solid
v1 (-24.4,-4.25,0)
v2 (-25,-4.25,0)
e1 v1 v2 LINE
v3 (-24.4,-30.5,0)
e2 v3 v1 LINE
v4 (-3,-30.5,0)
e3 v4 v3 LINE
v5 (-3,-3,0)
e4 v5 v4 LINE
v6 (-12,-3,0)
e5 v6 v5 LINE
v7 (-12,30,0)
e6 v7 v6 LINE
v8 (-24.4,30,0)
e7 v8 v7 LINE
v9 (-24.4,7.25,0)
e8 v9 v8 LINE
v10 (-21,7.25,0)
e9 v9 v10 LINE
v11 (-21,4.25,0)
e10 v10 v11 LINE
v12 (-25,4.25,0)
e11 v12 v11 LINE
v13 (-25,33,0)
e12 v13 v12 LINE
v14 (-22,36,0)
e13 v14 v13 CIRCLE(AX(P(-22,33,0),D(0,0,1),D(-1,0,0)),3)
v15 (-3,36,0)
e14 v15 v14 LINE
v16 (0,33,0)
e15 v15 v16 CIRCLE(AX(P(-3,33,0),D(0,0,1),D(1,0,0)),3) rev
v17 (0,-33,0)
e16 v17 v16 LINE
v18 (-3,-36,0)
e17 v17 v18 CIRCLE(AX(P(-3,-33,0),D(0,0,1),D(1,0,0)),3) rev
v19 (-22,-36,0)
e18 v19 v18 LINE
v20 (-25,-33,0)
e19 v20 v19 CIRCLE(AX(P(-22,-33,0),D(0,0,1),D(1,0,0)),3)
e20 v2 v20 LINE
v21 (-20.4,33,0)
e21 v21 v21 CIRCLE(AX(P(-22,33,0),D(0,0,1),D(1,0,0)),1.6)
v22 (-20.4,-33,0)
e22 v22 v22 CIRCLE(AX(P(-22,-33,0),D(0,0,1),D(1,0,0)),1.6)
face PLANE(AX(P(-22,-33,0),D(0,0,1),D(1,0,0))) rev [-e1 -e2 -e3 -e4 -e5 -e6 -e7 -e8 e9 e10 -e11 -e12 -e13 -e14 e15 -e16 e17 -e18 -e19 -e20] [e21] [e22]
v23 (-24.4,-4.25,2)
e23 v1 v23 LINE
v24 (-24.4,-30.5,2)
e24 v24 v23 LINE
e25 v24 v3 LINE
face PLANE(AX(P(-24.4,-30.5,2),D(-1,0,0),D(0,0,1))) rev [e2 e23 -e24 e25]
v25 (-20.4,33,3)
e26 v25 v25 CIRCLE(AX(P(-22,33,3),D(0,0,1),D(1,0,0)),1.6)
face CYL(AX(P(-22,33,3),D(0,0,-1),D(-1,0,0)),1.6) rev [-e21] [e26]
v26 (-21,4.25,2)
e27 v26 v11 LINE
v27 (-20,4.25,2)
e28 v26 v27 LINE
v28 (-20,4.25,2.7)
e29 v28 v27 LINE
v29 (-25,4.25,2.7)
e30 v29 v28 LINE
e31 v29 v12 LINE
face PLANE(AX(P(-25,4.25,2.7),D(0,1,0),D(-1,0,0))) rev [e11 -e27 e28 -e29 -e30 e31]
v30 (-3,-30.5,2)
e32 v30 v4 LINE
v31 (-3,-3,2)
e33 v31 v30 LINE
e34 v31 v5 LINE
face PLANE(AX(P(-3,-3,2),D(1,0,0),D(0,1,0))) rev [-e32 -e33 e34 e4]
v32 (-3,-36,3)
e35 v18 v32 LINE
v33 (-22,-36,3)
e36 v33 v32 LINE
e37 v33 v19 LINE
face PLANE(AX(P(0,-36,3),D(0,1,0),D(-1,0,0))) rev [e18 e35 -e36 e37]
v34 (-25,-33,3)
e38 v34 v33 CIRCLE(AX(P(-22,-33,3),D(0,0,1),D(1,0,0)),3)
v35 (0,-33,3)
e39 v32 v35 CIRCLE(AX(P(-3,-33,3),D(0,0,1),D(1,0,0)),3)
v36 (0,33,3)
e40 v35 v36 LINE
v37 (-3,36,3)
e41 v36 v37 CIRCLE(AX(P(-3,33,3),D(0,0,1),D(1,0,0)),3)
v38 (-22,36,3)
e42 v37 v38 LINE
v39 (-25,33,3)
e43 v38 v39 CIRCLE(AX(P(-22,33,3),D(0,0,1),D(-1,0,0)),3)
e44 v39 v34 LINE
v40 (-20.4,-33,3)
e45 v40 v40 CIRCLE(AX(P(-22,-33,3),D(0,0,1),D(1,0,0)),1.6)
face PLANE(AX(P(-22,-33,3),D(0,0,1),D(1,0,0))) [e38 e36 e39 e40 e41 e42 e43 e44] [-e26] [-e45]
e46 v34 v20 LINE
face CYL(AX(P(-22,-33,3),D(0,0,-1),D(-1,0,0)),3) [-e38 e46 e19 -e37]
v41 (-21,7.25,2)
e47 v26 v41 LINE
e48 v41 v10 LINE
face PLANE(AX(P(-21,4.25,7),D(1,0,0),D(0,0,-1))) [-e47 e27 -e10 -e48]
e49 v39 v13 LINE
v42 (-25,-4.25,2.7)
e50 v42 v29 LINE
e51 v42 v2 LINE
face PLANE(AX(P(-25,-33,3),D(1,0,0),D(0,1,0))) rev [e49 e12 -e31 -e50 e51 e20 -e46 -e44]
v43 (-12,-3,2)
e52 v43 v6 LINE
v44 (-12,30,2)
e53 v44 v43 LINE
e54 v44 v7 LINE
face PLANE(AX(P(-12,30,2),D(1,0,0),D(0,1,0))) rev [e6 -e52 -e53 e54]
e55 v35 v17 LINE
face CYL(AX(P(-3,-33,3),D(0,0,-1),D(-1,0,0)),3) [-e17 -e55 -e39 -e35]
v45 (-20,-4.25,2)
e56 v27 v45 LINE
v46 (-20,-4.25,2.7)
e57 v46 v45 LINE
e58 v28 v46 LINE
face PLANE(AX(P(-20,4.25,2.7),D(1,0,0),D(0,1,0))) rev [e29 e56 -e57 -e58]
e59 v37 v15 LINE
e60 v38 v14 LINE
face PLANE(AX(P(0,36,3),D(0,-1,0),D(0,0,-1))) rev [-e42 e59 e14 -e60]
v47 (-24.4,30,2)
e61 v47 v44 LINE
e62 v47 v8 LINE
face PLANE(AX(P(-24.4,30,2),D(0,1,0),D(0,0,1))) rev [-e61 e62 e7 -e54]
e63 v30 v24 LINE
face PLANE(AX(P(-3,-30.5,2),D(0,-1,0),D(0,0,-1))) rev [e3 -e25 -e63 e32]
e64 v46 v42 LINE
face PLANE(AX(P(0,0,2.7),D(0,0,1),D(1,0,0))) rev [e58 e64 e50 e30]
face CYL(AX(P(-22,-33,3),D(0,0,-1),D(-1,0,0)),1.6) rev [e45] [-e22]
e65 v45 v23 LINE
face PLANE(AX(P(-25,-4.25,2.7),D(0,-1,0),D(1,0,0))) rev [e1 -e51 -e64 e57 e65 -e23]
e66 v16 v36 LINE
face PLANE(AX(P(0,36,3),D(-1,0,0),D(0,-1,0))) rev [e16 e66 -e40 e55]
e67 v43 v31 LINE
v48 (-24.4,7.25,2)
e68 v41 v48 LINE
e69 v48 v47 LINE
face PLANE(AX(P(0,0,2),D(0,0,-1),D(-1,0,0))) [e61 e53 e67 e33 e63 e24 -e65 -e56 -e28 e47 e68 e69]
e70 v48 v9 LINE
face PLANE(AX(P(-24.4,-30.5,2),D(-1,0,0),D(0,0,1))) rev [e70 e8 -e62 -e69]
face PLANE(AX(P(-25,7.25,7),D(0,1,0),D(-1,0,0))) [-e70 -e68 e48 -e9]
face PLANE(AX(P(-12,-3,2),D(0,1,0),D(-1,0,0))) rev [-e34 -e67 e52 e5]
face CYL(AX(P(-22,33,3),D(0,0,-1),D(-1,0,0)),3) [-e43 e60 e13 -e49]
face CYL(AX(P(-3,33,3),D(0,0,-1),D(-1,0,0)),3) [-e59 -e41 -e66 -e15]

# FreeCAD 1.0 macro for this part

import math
import FreeCAD as App
import Part
import Sketcher
from FreeCAD import Vector
Q = App.Units.Quantity


def edges_at(feature, points):
    """Names of the edges that pass closest to the given points."""
    edges = feature.Shape.Edges
    near = lambda p: min(range(len(edges)), key=lambda i: edges[i].distToShape(Part.Vertex(*p))[0])
    return sorted({f"Edge{near(p) + 1}" for p in points})

doc = App.newDocument("Part")
body = doc.addObject("PartDesign::Body", "Body")

sketch1 = body.newObject("Sketcher::SketchObject", "Sketch")
sketch1.AttachmentSupport = (doc.getObject("XY_Plane"), [""])
sketch1.MapMode = "FlatFace"
sketch1.addGeometry([
    Part.LineSegment(Vector(0, -36, 0), Vector(0, 36, 0)),
    Part.LineSegment(Vector(0, 36, 0), Vector(-22, 36, 0)),
    Part.ArcOfCircle(Part.Circle(Vector(-22, 33, 0), Vector(0, 0, 1), 3), math.radians(90), math.radians(180)),
    Part.LineSegment(Vector(-25, 33, 0), Vector(-25, -33, 0)),
    Part.ArcOfCircle(Part.Circle(Vector(-22, -33, 0), Vector(0, 0, 1), 3), math.radians(180), math.radians(270)),
    Part.LineSegment(Vector(-22, -36, 0), Vector(0, -36, 0)),
    Part.Circle(Vector(-22, -33, 0), Vector(0, 0, 1), 1.6),
    Part.Circle(Vector(-22, 33, 0), Vector(0, 0, 1), 1.6),
], False)
sketch1.addConstraint([
    Sketcher.Constraint("Coincident", 0, 2, 1, 1),
    Sketcher.Constraint("Tangent", 1, 2, 2, 1),
    Sketcher.Constraint("Tangent", 2, 2, 3, 1),
    Sketcher.Constraint("Tangent", 3, 2, 4, 1),
    Sketcher.Constraint("Tangent", 4, 2, 5, 1),
    Sketcher.Constraint("Coincident", 5, 2, 0, 1),
    Sketcher.Constraint("Vertical", 0),
    Sketcher.Constraint("Horizontal", 1),
    Sketcher.Constraint("Vertical", 3),
    Sketcher.Constraint("Horizontal", 5),
    Sketcher.Constraint("Coincident", 6, 3, 4, 3),
    Sketcher.Constraint("Coincident", 7, 3, 2, 3),
    Sketcher.Constraint("Equal", 2, 4),
    Sketcher.Constraint("Equal", 6, 7),
    Sketcher.Constraint("Symmetric", 0, 2, 5, 2, -1, 1),
    Sketcher.Constraint("Radius", 2, Q("3 mm")),
    Sketcher.Constraint("Diameter", 6, Q("3.2 mm")),
    Sketcher.Constraint("DistanceX", 1, 2, 1, 1, Q("22 mm")),
    Sketcher.Constraint("DistanceY", 0, 1, 0, 2, Q("72 mm")),
])
pad1 = body.newObject("PartDesign::Pad", "Pad")
pad1.Profile = sketch1
pad1.Length = 3

sketch2 = body.newObject("Sketcher::SketchObject", "Sketch001")
sketch2.AttachmentSupport = (doc.getObject("XY_Plane"), [""])
sketch2.MapMode = "FlatFace"
sketch2.addGeometry([
    Part.LineSegment(Vector(-24, 30, 0), Vector(-12, 30, 0)),
    Part.LineSegment(Vector(-12, 30, 0), Vector(-12, -3, 0)),
    Part.LineSegment(Vector(-12, -3, 0), Vector(-3, -3, 0)),
    Part.LineSegment(Vector(-3, -3, 0), Vector(-3, -30, 0)),
    Part.LineSegment(Vector(-3, -30, 0), Vector(-24, -30, 0)),
    Part.LineSegment(Vector(-24, -30, 0), Vector(-24, 30, 0)),
], False)
sketch2.addConstraint([
    Sketcher.Constraint("Coincident", 0, 2, 1, 1),
    Sketcher.Constraint("Coincident", 1, 2, 2, 1),
    Sketcher.Constraint("Coincident", 2, 2, 3, 1),
    Sketcher.Constraint("Coincident", 3, 2, 4, 1),
    Sketcher.Constraint("Coincident", 4, 2, 5, 1),
    Sketcher.Constraint("Coincident", 5, 2, 0, 1),
    Sketcher.Constraint("Horizontal", 0),
    Sketcher.Constraint("Vertical", 1),
    Sketcher.Constraint("Horizontal", 2),
    Sketcher.Constraint("Vertical", 3),
    Sketcher.Constraint("Horizontal", 4),
    Sketcher.Constraint("Vertical", 5),
    Sketcher.Constraint("DistanceX", 2, 1, 2, 2, Q("9 mm")),
    Sketcher.Constraint("DistanceY", 1, 2, 1, 1, Q("33 mm")),
    Sketcher.Constraint("DistanceX", 0, 1, 0, 2, Q("12.4 mm")),
    Sketcher.Constraint("DistanceY", 3, 2, 3, 1, Q("27.5 mm")),
    Sketcher.Constraint("DistanceX", 0, 2, -1, 1, Q("12 mm")),
    Sketcher.Constraint("DistanceY", -1, 1, 0, 2, Q("30 mm")),
])
pocket1 = body.newObject("PartDesign::Pocket", "Pocket")
pocket1.Profile = sketch2
pocket1.Length = 2
pocket1.Reversed = True

sketch3 = body.newObject("Sketcher::SketchObject", "Sketch002")
sketch3.AttachmentSupport = (doc.getObject("XY_Plane"), [""])
sketch3.MapMode = "FlatFace"
sketch3.addGeometry([
    Part.LineSegment(Vector(-20, 4, 0), Vector(-20, -4, 0)),
    Part.LineSegment(Vector(-20, -4, 0), Vector(-25, -4, 0)),
    Part.LineSegment(Vector(-25, -4, 0), Vector(-25, 4, 0)),
    Part.LineSegment(Vector(-25, 4, 0), Vector(-20, 4, 0)),
], False)
sketch3.addConstraint([
    Sketcher.Constraint("Coincident", 0, 2, 1, 1),
    Sketcher.Constraint("Coincident", 1, 2, 2, 1),
    Sketcher.Constraint("Coincident", 2, 2, 3, 1),
    Sketcher.Constraint("Coincident", 3, 2, 0, 1),
    Sketcher.Constraint("Vertical", 0),
    Sketcher.Constraint("Horizontal", 1),
    Sketcher.Constraint("Vertical", 2),
    Sketcher.Constraint("Horizontal", 3),
    Sketcher.Constraint("DistanceX", 1, 2, 1, 1, Q("5 mm")),
    Sketcher.Constraint("DistanceY", 0, 2, 0, 1, Q("8.5 mm")),
    Sketcher.Constraint("DistanceX", 0, 2, -1, 1, Q("20 mm")),
    Sketcher.Constraint("DistanceY", 0, 2, -1, 1, Q("4.25 mm")),
])
pocket2 = body.newObject("PartDesign::Pocket", "Pocket001")
pocket2.Profile = sketch3
pocket2.Length = 2.7
pocket2.Reversed = True

sketch4 = body.newObject("Sketcher::SketchObject", "Sketch003")
sketch4.AttachmentSupport = (doc.getObject("XY_Plane"), [""])
sketch4.MapMode = "FlatFace"
sketch4.addGeometry([
    Part.LineSegment(Vector(-21, 7.2, 0), Vector(-21, 4.2, 0)),
    Part.LineSegment(Vector(-21, 4.2, 0), Vector(-25, 4.2, 0)),
    Part.LineSegment(Vector(-25, 4.2, 0), Vector(-25, 7.2, 0)),
    Part.LineSegment(Vector(-25, 7.2, 0), Vector(-21, 7.2, 0)),
], False)
sketch4.addConstraint([
    Sketcher.Constraint("Coincident", 0, 2, 1, 1),
    Sketcher.Constraint("Coincident", 1, 2, 2, 1),
    Sketcher.Constraint("Coincident", 2, 2, 3, 1),
    Sketcher.Constraint("Coincident", 3, 2, 0, 1),
    Sketcher.Constraint("Vertical", 0),
    Sketcher.Constraint("Horizontal", 1),
    Sketcher.Constraint("Vertical", 2),
    Sketcher.Constraint("Horizontal", 3),
    Sketcher.Constraint("DistanceX", 1, 2, 1, 1, Q("4 mm")),
    Sketcher.Constraint("DistanceY", 0, 2, 0, 1, Q("3 mm")),
    Sketcher.Constraint("DistanceX", 0, 2, -1, 1, Q("21 mm")),
    Sketcher.Constraint("DistanceY", -1, 1, 0, 2, Q("4.25 mm")),
])
pad2 = body.newObject("PartDesign::Pad", "Pad001")
pad2.Profile = sketch4
pad2.Length = 2
doc.recompute()

fillet = body.newObject("PartDesign::Fillet", "Fillet")
fillet.Base = (pad2, edges_at(pad2, [(0, 36, 1.5), (0, -36, 1.5)]))
fillet.Radius = 3

doc.recompute()
